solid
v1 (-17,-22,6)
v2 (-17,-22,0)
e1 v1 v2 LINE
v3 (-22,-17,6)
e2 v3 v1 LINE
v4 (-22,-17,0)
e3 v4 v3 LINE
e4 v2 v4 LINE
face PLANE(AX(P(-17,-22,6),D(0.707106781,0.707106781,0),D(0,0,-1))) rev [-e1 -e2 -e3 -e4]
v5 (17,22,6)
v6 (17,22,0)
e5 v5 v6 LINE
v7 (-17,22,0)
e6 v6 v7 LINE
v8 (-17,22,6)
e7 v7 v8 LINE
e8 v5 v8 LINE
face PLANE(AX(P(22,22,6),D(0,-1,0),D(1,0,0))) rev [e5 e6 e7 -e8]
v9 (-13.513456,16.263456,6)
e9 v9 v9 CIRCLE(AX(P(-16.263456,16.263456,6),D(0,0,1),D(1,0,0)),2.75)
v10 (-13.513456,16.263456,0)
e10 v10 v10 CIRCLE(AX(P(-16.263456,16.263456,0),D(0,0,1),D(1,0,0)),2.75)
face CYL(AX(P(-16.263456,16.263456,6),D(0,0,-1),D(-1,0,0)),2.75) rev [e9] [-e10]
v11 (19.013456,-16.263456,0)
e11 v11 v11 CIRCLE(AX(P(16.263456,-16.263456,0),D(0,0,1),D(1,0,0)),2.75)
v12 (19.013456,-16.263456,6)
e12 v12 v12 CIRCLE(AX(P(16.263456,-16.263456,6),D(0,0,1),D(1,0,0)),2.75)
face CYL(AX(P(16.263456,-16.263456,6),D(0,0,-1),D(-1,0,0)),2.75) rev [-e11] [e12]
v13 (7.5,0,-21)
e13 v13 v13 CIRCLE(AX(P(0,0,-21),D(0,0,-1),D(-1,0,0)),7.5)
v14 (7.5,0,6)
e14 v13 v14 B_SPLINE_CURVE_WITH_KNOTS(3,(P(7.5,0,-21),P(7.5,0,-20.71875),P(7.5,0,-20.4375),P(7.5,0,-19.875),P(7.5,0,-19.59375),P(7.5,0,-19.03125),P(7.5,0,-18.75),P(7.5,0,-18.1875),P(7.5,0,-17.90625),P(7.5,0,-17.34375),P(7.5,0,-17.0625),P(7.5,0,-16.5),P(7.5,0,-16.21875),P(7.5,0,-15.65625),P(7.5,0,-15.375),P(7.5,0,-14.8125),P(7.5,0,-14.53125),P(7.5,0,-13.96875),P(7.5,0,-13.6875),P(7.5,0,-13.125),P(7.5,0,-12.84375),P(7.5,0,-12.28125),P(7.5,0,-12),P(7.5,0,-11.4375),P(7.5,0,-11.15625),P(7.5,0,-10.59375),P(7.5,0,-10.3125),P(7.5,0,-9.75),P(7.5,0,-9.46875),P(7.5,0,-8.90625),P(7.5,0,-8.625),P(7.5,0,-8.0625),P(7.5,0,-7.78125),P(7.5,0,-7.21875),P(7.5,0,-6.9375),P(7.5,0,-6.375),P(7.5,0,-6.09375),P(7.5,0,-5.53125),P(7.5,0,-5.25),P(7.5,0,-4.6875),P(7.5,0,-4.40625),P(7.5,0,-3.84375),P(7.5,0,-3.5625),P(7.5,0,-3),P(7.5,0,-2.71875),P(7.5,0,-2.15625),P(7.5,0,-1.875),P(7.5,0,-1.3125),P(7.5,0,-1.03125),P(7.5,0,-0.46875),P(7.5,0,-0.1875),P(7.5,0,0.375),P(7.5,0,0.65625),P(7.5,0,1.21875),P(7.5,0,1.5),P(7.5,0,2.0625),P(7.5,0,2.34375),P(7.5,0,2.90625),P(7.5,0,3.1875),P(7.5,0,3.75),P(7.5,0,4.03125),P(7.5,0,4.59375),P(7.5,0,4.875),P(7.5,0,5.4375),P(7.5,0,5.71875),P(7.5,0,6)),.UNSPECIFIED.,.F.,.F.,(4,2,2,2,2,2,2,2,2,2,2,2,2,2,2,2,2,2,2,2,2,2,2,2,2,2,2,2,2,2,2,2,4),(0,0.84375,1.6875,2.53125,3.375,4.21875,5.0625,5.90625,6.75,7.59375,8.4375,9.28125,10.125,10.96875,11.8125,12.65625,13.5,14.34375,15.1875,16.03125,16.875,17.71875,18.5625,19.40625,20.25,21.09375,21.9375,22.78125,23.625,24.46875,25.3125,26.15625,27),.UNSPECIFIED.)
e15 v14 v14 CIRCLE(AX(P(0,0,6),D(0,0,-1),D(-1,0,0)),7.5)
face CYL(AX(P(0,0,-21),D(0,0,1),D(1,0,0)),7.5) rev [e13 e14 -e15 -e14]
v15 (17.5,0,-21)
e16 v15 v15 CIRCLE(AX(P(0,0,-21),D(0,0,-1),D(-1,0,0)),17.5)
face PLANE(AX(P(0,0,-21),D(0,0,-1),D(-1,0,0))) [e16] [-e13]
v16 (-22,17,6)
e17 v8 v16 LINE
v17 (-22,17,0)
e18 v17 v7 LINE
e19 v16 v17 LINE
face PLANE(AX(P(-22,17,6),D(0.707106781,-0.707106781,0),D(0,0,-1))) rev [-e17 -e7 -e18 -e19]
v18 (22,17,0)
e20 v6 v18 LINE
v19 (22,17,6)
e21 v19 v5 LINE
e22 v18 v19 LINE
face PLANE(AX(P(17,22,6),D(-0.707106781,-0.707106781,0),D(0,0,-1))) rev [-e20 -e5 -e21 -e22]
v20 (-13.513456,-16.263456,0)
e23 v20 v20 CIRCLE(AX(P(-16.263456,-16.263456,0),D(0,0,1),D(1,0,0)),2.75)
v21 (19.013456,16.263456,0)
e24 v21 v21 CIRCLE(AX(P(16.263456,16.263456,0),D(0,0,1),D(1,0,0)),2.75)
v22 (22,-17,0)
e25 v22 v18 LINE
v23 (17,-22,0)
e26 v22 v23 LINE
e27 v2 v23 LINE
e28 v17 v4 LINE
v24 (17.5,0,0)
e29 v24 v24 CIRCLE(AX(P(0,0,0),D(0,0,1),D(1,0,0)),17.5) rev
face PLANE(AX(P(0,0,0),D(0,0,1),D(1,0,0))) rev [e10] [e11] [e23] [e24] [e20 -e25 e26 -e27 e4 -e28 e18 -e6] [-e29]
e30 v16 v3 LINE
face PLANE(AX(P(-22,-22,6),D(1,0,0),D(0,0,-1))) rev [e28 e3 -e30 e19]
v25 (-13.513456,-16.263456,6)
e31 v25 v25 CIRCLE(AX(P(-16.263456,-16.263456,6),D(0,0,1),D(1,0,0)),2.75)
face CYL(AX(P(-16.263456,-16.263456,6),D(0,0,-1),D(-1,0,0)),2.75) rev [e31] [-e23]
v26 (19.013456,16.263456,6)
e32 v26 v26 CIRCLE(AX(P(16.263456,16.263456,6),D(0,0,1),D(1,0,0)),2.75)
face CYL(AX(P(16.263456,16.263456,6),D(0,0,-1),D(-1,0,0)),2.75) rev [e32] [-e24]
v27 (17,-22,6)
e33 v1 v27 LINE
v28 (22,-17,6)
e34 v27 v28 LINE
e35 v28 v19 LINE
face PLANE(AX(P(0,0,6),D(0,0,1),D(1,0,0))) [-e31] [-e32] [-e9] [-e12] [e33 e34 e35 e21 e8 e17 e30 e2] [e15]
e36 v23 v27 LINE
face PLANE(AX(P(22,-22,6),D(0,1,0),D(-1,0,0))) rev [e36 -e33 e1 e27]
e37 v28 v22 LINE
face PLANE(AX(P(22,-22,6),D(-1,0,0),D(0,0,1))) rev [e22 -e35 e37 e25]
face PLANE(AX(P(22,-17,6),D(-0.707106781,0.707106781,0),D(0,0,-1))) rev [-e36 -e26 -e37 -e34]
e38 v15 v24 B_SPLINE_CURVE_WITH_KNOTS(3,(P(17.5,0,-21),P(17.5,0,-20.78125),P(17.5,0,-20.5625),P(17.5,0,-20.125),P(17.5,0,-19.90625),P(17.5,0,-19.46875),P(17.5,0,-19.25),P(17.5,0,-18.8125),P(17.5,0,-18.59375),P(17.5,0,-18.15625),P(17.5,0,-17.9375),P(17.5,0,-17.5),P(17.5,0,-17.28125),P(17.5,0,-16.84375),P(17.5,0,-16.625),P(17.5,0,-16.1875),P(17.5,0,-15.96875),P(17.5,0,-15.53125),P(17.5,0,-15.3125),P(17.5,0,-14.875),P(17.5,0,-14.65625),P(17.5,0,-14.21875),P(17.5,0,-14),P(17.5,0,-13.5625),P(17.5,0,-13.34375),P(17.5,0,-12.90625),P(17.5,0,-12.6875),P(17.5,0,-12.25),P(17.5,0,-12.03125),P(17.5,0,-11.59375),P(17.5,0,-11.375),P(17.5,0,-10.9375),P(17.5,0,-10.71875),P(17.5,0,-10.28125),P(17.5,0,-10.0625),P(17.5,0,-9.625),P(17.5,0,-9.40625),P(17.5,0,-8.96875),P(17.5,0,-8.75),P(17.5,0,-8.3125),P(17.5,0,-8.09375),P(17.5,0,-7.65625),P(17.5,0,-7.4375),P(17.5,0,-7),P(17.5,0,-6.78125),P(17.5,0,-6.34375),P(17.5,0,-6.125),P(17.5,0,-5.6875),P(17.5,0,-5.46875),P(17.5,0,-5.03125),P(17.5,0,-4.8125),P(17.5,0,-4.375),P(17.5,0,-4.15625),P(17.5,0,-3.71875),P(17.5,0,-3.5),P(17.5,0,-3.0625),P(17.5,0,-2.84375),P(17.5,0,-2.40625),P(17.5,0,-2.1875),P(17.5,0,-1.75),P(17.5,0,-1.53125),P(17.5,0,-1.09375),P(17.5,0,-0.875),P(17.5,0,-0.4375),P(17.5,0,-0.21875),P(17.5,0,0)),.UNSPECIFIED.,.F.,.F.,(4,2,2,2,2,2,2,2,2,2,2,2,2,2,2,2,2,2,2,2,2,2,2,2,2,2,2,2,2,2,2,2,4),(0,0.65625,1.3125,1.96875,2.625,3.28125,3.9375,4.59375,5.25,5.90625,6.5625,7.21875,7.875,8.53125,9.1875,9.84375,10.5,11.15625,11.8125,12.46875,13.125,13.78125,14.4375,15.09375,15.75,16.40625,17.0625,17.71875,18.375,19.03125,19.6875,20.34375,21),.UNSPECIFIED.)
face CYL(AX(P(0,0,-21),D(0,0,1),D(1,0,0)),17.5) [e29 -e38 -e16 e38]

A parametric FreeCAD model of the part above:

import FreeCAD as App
import Part
import Sketcher
from FreeCAD import Vector


def edges_at(feature, points):
    """Names of the edges that pass closest to the given points."""
    edges = feature.Shape.Edges
    near = lambda p: min(range(len(edges)), key=lambda i: edges[i].distToShape(Part.Vertex(*p))[0])
    return sorted({f"Edge{near(p) + 1}" for p in points})

doc = App.newDocument("Part")
body = doc.addObject("PartDesign::Body", "Body")

# Sketch on XY plane
sketch1 = doc.addObject("Sketcher::SketchObject", "Sketch")
body.addObject(sketch1)
sketch1.AttachmentSupport = (doc.XY_Plane, [""])
sketch1.MapMode = "FlatFace"
sketch1.addGeometry([
    Part.LineSegment(Vector(-22, 22, 0), Vector(-22, -22, 0)),  # 0
    Part.LineSegment(Vector(-22, -22, 0), Vector(22, -22, 0)),  # 1
    Part.LineSegment(Vector(22, -22, 0), Vector(22, 22, 0)),  # 2
    Part.LineSegment(Vector(22, 22, 0), Vector(-22, 22, 0)),  # 3
    Part.Circle(Vector(-16.3, -16.3, 0), Vector(0, 0, 1), 2.8),  # 4
    Part.Circle(Vector(16.3, -16.3, 0), Vector(0, 0, 1), 2.8),  # 5
    Part.Circle(Vector(-16.3, 16.3, 0), Vector(0, 0, 1), 2.8),  # 6
    Part.Circle(Vector(16.3, 16.3, 0), Vector(0, 0, 1), 2.8),  # 7
], False)
sketch1.addConstraint([
    Sketcher.Constraint("Coincident", 0, 2, 1, 1),
    Sketcher.Constraint("Coincident", 1, 2, 2, 1),
    Sketcher.Constraint("Coincident", 2, 2, 3, 1),
    Sketcher.Constraint("Coincident", 3, 2, 0, 1),
    Sketcher.Constraint("Vertical", 0),
    Sketcher.Constraint("Horizontal", 1),
    Sketcher.Constraint("Vertical", 2),
    Sketcher.Constraint("Horizontal", 3),
    Sketcher.Constraint("Equal", 4, 5),
    Sketcher.Constraint("Equal", 5, 6),
    Sketcher.Constraint("Equal", 6, 7),
    Sketcher.Constraint("Symmetric", 5, 3, 6, 3, -1, 1),
    Sketcher.Constraint("Symmetric", 4, 3, 7, 3, -1, 1),
    Sketcher.Constraint("Symmetric", 0, 2, 2, 2, -1, 1),
    Sketcher.Constraint("Symmetric", 4, 3, 5, 3, -2),
    Sketcher.Constraint("Equal", 3, 0),
    Sketcher.Constraint("Diameter", 4, 5.5),
    Sketcher.Constraint("DistanceX", 1, 1, 1, 2, 44.0),
    Sketcher.Constraint("DistanceX", 4, 3, 5, 3, 32.526912),
    Sketcher.Constraint("DistanceY", 4, 3, 6, 3, 32.526912),
])
pad1 = doc.addObject("PartDesign::Pad", "Pad")
body.addObject(pad1)
pad1.Profile = sketch1
pad1.Length = 6
doc.recompute()

chamfer = doc.addObject("PartDesign::Chamfer", "Chamfer")
body.addObject(chamfer)
chamfer.Base = (pad1, edges_at(pad1, [
    (-22, 22, 3),
    (22, 22, 3),
    (22, -22, 3),
    (-22, -22, 3),
]))
chamfer.Size = 5

# Sketch on XY plane
sketch2 = doc.addObject("Sketcher::SketchObject", "Sketch001")
body.addObject(sketch2)
sketch2.AttachmentSupport = (doc.XY_Plane, [""])
sketch2.MapMode = "FlatFace"
sketch2.addGeometry([
    Part.Circle(Vector(0, 0, 0), Vector(0, 0, 1), 18),
    Part.Circle(Vector(0, 0, 0), Vector(0, 0, 1), 8),
], False)
sketch2.addConstraint([
    Sketcher.Constraint("Coincident", 0, 3, -1, 1),
    Sketcher.Constraint("Coincident", 1, 3, -1, 1),
    Sketcher.Constraint("Diameter", 0, 35.0),
    Sketcher.Constraint("Diameter", 1, 15.0),
])
pad2 = doc.addObject("PartDesign::Pad", "Pad001")
body.addObject(pad2)
pad2.Profile = sketch2
pad2.Length = 21
pad2.Reversed = True

# Sketch on XY plane
sketch3 = doc.addObject("Sketcher::SketchObject", "Sketch002")
body.addObject(sketch3)
sketch3.AttachmentSupport = (doc.XY_Plane, [""])
sketch3.MapMode = "FlatFace"
sketch3.addGeometry(Part.Circle(Vector(0, 0, 0), Vector(0, 0, 1), 8), False)
sketch3.addConstraint([
    Sketcher.Constraint("Coincident", 0, 3, -1, 1),
    Sketcher.Constraint("Diameter", 0, 15.0),
])
pocket1 = doc.addObject("PartDesign::Pocket", "Pocket")
body.addObject(pocket1)
pocket1.Profile = sketch3
pocket1.Type = "ThroughAll"
pocket1.Reversed = True

doc.recompute()
